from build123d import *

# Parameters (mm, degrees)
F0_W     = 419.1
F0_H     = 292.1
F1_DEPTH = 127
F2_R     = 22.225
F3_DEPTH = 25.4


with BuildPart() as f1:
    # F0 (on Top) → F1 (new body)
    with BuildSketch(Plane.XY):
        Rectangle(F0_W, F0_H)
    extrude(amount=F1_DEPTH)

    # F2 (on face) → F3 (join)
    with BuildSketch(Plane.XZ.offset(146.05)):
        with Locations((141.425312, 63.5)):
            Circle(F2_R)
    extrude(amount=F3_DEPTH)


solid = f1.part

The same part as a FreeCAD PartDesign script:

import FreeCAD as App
import Part
import Sketcher

V = App.Vector
Q = App.Units.Quantity


def add_polygon(sketch, points):
    """Adds a closed chain of lines whose ends are joined by coincident constraints."""
    first, n = sketch.GeometryCount, len(points)
    for a, b in zip(points, points[1:] + points[:1]):
        sketch.addGeometry(Part.LineSegment(App.Vector(*a, 0), App.Vector(*b, 0)), False)
    for i in range(n):
        sketch.addConstraint(Sketcher.Constraint("Coincident", first + i, 2, first + (i + 1) % n, 1))

doc = App.newDocument("Part")
body = doc.addObject("PartDesign::Body", "Body")

# Sketch on XY plane
sketch1 = body.newObject("Sketcher::SketchObject", "Sketch")
sketch1.AttachmentSupport = (doc.getObject("XY_Plane"), [""])
sketch1.MapMode = "FlatFace"
add_polygon(sketch1, [(-210, 146), (-210, -146), (210, -146), (210, 146)])  # lines 0-3
sketch1.addConstraint([
    Sketcher.Constraint("Vertical", 0),
    Sketcher.Constraint("Horizontal", 1),
    Sketcher.Constraint("Vertical", 2),
    Sketcher.Constraint("Horizontal", 3),
    Sketcher.Constraint("Symmetric", 0, 2, 2, 2, -1, 1),
    Sketcher.Constraint("DistanceX", 1, 1, 1, 2, Q("16.5 in")),
    Sketcher.Constraint("DistanceY", 0, 2, 0, 1, Q("11.5 in")),
])
pad1 = body.newObject("PartDesign::Pad", "Pad")
pad1.Profile = sketch1
pad1.Length = Q("5 in")

# Sketch on XZ plane
sketch2 = body.newObject("Sketcher::SketchObject", "Sketch001")
sketch2.AttachmentSupport = (doc.getObject("XZ_Plane"), [""])
sketch2.MapMode = "FlatFace"
sketch2.AttachmentOffset = App.Placement(V(0, 0, 5.75 * 25.4), App.Rotation())
sketch2.addGeometry(Part.Circle(V(141, 64, 0), V(0, 0, 1), 22), False)
sketch2.addConstraint([
    Sketcher.Constraint("Diameter", 0, Q("1.75 in")),
    Sketcher.Constraint("DistanceY", -1, 1, 0, 3, Q("2.5 in")),
    Sketcher.Constraint("DistanceX", -1, 1, 0, 3, 141.425312),
])
pad2 = body.newObject("PartDesign::Pad", "Pad001")
pad2.Profile = sketch2
pad2.Length = Q("1 in")

doc.recompute()
